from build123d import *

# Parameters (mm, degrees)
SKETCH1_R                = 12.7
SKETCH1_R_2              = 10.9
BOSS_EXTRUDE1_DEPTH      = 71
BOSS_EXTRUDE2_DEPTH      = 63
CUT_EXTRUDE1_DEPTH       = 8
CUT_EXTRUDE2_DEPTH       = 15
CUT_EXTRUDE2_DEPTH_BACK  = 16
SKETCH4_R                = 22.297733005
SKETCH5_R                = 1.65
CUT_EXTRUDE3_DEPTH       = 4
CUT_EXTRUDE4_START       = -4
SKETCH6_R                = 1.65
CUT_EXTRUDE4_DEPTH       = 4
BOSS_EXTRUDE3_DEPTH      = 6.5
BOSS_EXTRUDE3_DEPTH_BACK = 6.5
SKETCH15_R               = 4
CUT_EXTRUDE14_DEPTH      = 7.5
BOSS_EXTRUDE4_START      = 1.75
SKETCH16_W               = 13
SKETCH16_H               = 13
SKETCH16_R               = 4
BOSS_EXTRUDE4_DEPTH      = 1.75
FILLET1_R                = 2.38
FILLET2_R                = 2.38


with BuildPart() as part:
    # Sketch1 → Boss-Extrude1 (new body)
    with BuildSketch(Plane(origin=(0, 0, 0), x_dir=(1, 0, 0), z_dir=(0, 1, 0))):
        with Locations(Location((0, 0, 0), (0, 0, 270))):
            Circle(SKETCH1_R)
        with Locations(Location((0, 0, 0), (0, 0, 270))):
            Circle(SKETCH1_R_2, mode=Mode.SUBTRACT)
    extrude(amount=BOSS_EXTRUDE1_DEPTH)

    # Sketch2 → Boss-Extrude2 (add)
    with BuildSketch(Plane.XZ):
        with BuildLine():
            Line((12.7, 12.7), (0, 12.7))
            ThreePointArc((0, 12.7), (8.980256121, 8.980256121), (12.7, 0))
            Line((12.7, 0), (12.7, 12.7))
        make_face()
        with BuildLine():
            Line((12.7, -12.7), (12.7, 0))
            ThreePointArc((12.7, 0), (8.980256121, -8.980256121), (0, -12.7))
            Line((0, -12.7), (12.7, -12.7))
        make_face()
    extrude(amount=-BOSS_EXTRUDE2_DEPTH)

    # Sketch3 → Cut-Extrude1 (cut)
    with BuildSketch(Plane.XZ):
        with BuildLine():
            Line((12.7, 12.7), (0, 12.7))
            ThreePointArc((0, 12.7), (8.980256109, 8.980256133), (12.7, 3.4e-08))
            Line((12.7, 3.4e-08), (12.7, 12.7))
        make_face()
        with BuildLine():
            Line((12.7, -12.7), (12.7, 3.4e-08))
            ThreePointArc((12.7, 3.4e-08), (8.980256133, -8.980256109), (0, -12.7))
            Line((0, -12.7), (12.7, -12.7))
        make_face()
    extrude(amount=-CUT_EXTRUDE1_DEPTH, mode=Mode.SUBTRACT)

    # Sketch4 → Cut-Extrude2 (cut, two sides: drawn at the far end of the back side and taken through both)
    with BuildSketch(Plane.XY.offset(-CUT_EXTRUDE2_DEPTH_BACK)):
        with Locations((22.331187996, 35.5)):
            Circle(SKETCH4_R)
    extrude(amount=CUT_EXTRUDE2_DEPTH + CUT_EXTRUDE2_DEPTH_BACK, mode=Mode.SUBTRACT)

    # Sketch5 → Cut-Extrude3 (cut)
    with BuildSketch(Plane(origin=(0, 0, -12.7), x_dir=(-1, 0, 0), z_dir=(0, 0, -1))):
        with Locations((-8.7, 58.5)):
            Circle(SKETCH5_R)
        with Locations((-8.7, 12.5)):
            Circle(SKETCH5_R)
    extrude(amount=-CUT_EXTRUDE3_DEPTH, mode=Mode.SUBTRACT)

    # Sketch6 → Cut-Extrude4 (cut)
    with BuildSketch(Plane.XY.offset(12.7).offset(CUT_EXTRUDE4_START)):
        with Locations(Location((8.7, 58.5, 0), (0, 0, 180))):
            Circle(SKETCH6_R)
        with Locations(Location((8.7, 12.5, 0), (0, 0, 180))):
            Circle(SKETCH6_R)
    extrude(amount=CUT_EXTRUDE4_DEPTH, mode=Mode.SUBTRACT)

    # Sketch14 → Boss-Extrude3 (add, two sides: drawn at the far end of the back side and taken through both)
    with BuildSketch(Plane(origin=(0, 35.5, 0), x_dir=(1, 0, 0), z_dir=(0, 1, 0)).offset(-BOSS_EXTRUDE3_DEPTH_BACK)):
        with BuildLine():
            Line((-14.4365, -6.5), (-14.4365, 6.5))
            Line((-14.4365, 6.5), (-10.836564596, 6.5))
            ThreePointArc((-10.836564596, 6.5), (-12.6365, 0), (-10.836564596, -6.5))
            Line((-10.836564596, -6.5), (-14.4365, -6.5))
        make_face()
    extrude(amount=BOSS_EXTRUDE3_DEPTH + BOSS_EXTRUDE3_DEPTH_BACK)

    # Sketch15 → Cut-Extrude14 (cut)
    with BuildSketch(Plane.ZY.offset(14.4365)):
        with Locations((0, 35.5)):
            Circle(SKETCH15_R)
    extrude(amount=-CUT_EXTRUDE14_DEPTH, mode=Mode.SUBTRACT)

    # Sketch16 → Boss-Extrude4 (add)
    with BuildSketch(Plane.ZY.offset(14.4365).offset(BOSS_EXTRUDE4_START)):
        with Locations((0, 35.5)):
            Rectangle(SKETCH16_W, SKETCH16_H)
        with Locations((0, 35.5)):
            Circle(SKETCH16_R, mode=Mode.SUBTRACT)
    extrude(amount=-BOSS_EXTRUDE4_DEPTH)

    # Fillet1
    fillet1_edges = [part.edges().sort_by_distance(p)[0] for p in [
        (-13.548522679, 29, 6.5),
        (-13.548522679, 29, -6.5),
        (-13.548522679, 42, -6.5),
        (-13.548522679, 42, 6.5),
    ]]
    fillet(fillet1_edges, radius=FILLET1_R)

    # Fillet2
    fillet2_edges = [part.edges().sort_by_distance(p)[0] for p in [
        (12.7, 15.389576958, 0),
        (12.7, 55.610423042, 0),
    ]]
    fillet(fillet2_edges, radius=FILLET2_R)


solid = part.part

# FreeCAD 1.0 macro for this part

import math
import FreeCAD as App
import Part
import Sketcher
from FreeCAD import Vector


def edges_at(feature, points):
    """Names of the edges that pass closest to the given points."""
    edges = feature.Shape.Edges
    near = lambda p: min(range(len(edges)), key=lambda i: edges[i].distToShape(Part.Vertex(*p))[0])
    return sorted({f"Edge{near(p) + 1}" for p in points})


def add_polygon(sketch, points):
    """Adds a closed chain of lines whose ends are joined by coincident constraints."""
    first, n = sketch.GeometryCount, len(points)
    for a, b in zip(points, points[1:] + points[:1]):
        sketch.addGeometry(Part.LineSegment(App.Vector(*a, 0), App.Vector(*b, 0)), False)
    for i in range(n):
        sketch.addConstraint(Sketcher.Constraint("Coincident", first + i, 2, first + (i + 1) % n, 1))

doc = App.newDocument("Part")
params = doc.addObject("Spreadsheet::Sheet", "Params")
for row, (alias, value) in enumerate([
    ("sketch1_diameter", "25.4 mm"),
    ("sketch1_diameter2", "21.8 mm"),
    ("pad1_length", "71 mm"),
    ("sketch2_radius", "12.7 mm"),
    ("pad2_length", "63 mm"),
    ("sketch3_radius", "12.7 mm"),
    ("pocket1_length", "8 mm"),
    ("sketch5_diameter", "3.3 mm"),
    ("pocket3_length", "4 mm"),
    ("sketch6_diameter", "3.3 mm"),
    ("pocket4_length", "4 mm"),
    ("sketch7_height", "13 mm"),
    ("pad3_length", "6.5 mm"),
    ("pad3_length2", "6.5 mm"),
    ("sketch8_diameter", "8 mm"),
    ("pocket5_length", "7.5 mm"),
    ("sketch9_diameter", "8 mm"),
    ("sketch9_width", "13 mm"),
    ("pad4_length", "1.75 mm"),
    ("fillet_radius", "2.38 mm"),
    ("fillet2_radius", "2.38 mm"),
], start=1):
    params.set(f"A{row}", alias)
    params.set(f"B{row}", "=" + value)
    params.setAlias(f"B{row}", alias)

body = doc.addObject("PartDesign::Body", "Body")

# Sketch on XZ plane
sketch1 = body.newObject("Sketcher::SketchObject", "Sketch")
sketch1.AttachmentSupport = (doc.getObject("XZ_Plane"), [""])
sketch1.MapMode = "FlatFace"
sketch1.addGeometry(Part.Circle(Vector(0, 0, 0), Vector(0, 0, 1), 13), False)
sketch1.addGeometry(Part.Circle(Vector(0, 0, 0), Vector(0, 0, 1), 11), False)
sketch1.addConstraint(Sketcher.Constraint("Coincident", 0, 3, -1, 1))
sketch1.addConstraint(Sketcher.Constraint("Coincident", 1, 3, -1, 1))
sketch1.addConstraint(Sketcher.Constraint("Diameter", 0, 25.4))
sketch1.addConstraint(Sketcher.Constraint("Diameter", 1, 21.8))
sketch1.setExpression("Constraints[2]", "Params.sketch1_diameter")
sketch1.setExpression("Constraints[3]", "Params.sketch1_diameter2")
pad1 = body.newObject("PartDesign::Pad", "Pad")
pad1.Profile = sketch1
pad1.setExpression("Length", "Params.pad1_length")
pad1.Reversed = True

# Sketch on XZ plane
sketch2 = body.newObject("Sketcher::SketchObject", "Sketch001")
sketch2.AttachmentSupport = (doc.getObject("XZ_Plane"), [""])
sketch2.MapMode = "FlatFace"
sketch2.addGeometry(Part.LineSegment(Vector(13, 13, 0), Vector(0, 13, 0)), False)
sketch2.addGeometry(Part.ArcOfCircle(Part.Circle(Vector(0, 0, 0), Vector(0, 0, 1), 13), math.radians(0), math.radians(90)), False)
sketch2.addGeometry(Part.LineSegment(Vector(13, 0, 0), Vector(13, 13, 0)), False)
sketch2.addGeometry(Part.LineSegment(Vector(13, -13, 0), Vector(13, 0, 0)), False)
sketch2.addGeometry(Part.ArcOfCircle(Part.Circle(Vector(0, 0, 0), Vector(0, 0, 1), 13), math.radians(-90), math.radians(0)), False)
sketch2.addGeometry(Part.LineSegment(Vector(0, -13, 0), Vector(13, -13, 0)), False)
sketch2.addConstraint(Sketcher.Constraint("Tangent", 0, 2, 1, 2))
sketch2.addConstraint(Sketcher.Constraint("Tangent", 1, 1, 2, 1))
sketch2.addConstraint(Sketcher.Constraint("Coincident", 2, 2, 0, 1))
sketch2.addConstraint(Sketcher.Constraint("Tangent", 3, 2, 4, 2))
sketch2.addConstraint(Sketcher.Constraint("Tangent", 4, 1, 5, 1))
sketch2.addConstraint(Sketcher.Constraint("Coincident", 5, 2, 3, 1))
sketch2.addConstraint(Sketcher.Constraint("Horizontal", 0))
sketch2.addConstraint(Sketcher.Constraint("Vertical", 2))
sketch2.addConstraint(Sketcher.Constraint("Vertical", 3))
sketch2.addConstraint(Sketcher.Constraint("Horizontal", 5))
sketch2.addConstraint(Sketcher.Constraint("Coincident", 1, 3, -1, 1))
sketch2.addConstraint(Sketcher.Constraint("Coincident", 4, 3, -1, 1))
sketch2.addConstraint(Sketcher.Constraint("Equal", 1, 4))
sketch2.addConstraint(Sketcher.Constraint("Radius", 1, 12.7))
sketch2.setExpression("Constraints[13]", "Params.sketch2_radius")
pad2 = body.newObject("PartDesign::Pad", "Pad001")
pad2.Profile = sketch2
pad2.setExpression("Length", "Params.pad2_length")
pad2.Reversed = True

# Sketch on XZ plane
sketch3 = body.newObject("Sketcher::SketchObject", "Sketch002")
sketch3.AttachmentSupport = (doc.getObject("XZ_Plane"), [""])
sketch3.MapMode = "FlatFace"
sketch3.addGeometry(Part.LineSegment(Vector(13, 13, 0), Vector(0, 13, 0)), False)
sketch3.addGeometry(Part.ArcOfCircle(Part.Circle(Vector(0, 0, 0), Vector(0, 0, 1), 13), math.radians(0), math.radians(90)), False)
sketch3.addGeometry(Part.LineSegment(Vector(13, 0, 0), Vector(13, 13, 0)), False)
sketch3.addGeometry(Part.LineSegment(Vector(13, -13, 0), Vector(13, 0, 0)), False)
sketch3.addGeometry(Part.ArcOfCircle(Part.Circle(Vector(0, 0, 0), Vector(0, 0, 1), 13), math.radians(-90), math.radians(0)), False)
sketch3.addGeometry(Part.LineSegment(Vector(0, -13, 0), Vector(13, -13, 0)), False)
sketch3.addConstraint(Sketcher.Constraint("Tangent", 0, 2, 1, 2))
sketch3.addConstraint(Sketcher.Constraint("Tangent", 1, 1, 2, 1))
sketch3.addConstraint(Sketcher.Constraint("Coincident", 2, 2, 0, 1))
sketch3.addConstraint(Sketcher.Constraint("Tangent", 3, 2, 4, 2))
sketch3.addConstraint(Sketcher.Constraint("Tangent", 4, 1, 5, 1))
sketch3.addConstraint(Sketcher.Constraint("Coincident", 5, 2, 3, 1))
sketch3.addConstraint(Sketcher.Constraint("Horizontal", 0))
sketch3.addConstraint(Sketcher.Constraint("Vertical", 2))
sketch3.addConstraint(Sketcher.Constraint("Vertical", 3))
sketch3.addConstraint(Sketcher.Constraint("Horizontal", 5))
sketch3.addConstraint(Sketcher.Constraint("Coincident", 1, 3, -1, 1))
sketch3.addConstraint(Sketcher.Constraint("Coincident", 4, 3, -1, 1))
sketch3.addConstraint(Sketcher.Constraint("Equal", 1, 4))
sketch3.addConstraint(Sketcher.Constraint("Radius", 1, 12.7))
sketch3.setExpression("Constraints[13]", "Params.sketch3_radius")
pocket1 = body.newObject("PartDesign::Pocket", "Pocket")
pocket1.Profile = sketch3
pocket1.setExpression("Length", "Params.pocket1_length")

# Sketch on XY plane
sketch4 = body.newObject("Sketcher::SketchObject", "Sketch003")
sketch4.AttachmentSupport = (doc.getObject("XY_Plane"), [""])
sketch4.MapMode = "FlatFace"
sketch4.addGeometry(Part.Circle(Vector(22, 36, 0), Vector(0, 0, 1), 22), False)
sketch4.addConstraint(Sketcher.Constraint("DistanceY", -1, 1, 0, 3, 35.5))
sketch4.addConstraint(Sketcher.Constraint("Diameter", 0, 44.595466))
sketch4.addConstraint(Sketcher.Constraint("DistanceX", -1, 1, 0, 3, 22.331188))
pocket2 = body.newObject("PartDesign::Pocket", "Pocket001")
pocket2.Profile = sketch4
pocket2.Type = "ThroughAll"
pocket2.Midplane = True

# Sketch on XY plane
sketch5 = body.newObject("Sketcher::SketchObject", "Sketch004")
sketch5.AttachmentSupport = (doc.getObject("XY_Plane"), [""])
sketch5.MapMode = "FlatFace"
sketch5.AttachmentOffset = App.Placement(Vector(0, 0, -12.7), App.Rotation())
sketch5.addGeometry(Part.Circle(Vector(8.7, 58.5, 0), Vector(0, 0, 1), 1.6), False)
sketch5.addGeometry(Part.Circle(Vector(8.7, 12.5, 0), Vector(0, 0, 1), 1.6), False)
sketch5.addConstraint(Sketcher.Constraint("Equal", 0, 1))
sketch5.addConstraint(Sketcher.Constraint("Vertical", 0, 3, 1, 3))
sketch5.addConstraint(Sketcher.Constraint("Diameter", 0, 3.3))
sketch5.addConstraint(Sketcher.Constraint("DistanceY", 1, 3, 0, 3, 46.0))
sketch5.addConstraint(Sketcher.Constraint("DistanceX", -1, 1, 0, 3, 8.7))
sketch5.addConstraint(Sketcher.Constraint("DistanceY", -1, 1, 0, 3, 58.5))
sketch5.setExpression("Constraints[2]", "Params.sketch5_diameter")
pocket3 = body.newObject("PartDesign::Pocket", "Pocket002")
pocket3.Profile = sketch5
pocket3.setExpression("Length", "Params.pocket3_length")
pocket3.Reversed = True

# Sketch on XY plane
sketch6 = body.newObject("Sketcher::SketchObject", "Sketch005")
sketch6.AttachmentSupport = (doc.getObject("XY_Plane"), [""])
sketch6.MapMode = "FlatFace"
sketch6.AttachmentOffset = App.Placement(Vector(0, 0, 8.7), App.Rotation())
sketch6.addGeometry(Part.Circle(Vector(8.7, 58.5, 0), Vector(0, 0, 1), 1.6), False)
sketch6.addGeometry(Part.Circle(Vector(8.7, 12.5, 0), Vector(0, 0, 1), 1.6), False)
sketch6.addConstraint(Sketcher.Constraint("Equal", 0, 1))
sketch6.addConstraint(Sketcher.Constraint("Vertical", 0, 3, 1, 3))
sketch6.addConstraint(Sketcher.Constraint("Diameter", 0, 3.3))
sketch6.addConstraint(Sketcher.Constraint("DistanceY", 1, 3, 0, 3, 46.0))
sketch6.addConstraint(Sketcher.Constraint("DistanceX", -1, 1, 0, 3, 8.7))
sketch6.addConstraint(Sketcher.Constraint("DistanceY", -1, 1, 0, 3, 58.5))
sketch6.setExpression("Constraints[2]", "Params.sketch6_diameter")
pocket4 = body.newObject("PartDesign::Pocket", "Pocket003")
pocket4.Profile = sketch6
pocket4.setExpression("Length", "Params.pocket4_length")
pocket4.Reversed = True

# Sketch on XZ plane
sketch7 = body.newObject("Sketcher::SketchObject", "Sketch006")
sketch7.AttachmentSupport = (doc.getObject("XZ_Plane"), [""])
sketch7.MapMode = "FlatFace"
sketch7.AttachmentOffset = App.Placement(Vector(0, 0, -35.5), App.Rotation())
sketch7.addGeometry(Part.LineSegment(Vector(-14.4, -6.5, 0), Vector(-14.4, 6.5, 0)), False)
sketch7.addGeometry(Part.LineSegment(Vector(-14.4, 6.5, 0), Vector(-10.8, 6.5, 0)), False)
sketch7.addGeometry(Part.ArcOfCircle(Part.Circle(Vector(0, 0, 0), Vector(0, 0, 1), 12.6), math.radians(149), math.radians(211)), False)
sketch7.addGeometry(Part.LineSegment(Vector(-10.8, -6.5, 0), Vector(-14.4, -6.5, 0)), False)
sketch7.addConstraint(Sketcher.Constraint("Coincident", 0, 2, 1, 1))
sketch7.addConstraint(Sketcher.Constraint("Coincident", 1, 2, 2, 1))
sketch7.addConstraint(Sketcher.Constraint("Coincident", 2, 2, 3, 1))
sketch7.addConstraint(Sketcher.Constraint("Coincident", 3, 2, 0, 1))
sketch7.addConstraint(Sketcher.Constraint("Vertical", 0))
sketch7.addConstraint(Sketcher.Constraint("Horizontal", 1))
sketch7.addConstraint(Sketcher.Constraint("Horizontal", 3))
sketch7.addConstraint(Sketcher.Constraint("Coincident", 2, 3, -1, 1))
sketch7.addConstraint(Sketcher.Constraint("Vertical", 1, 2, 2, 2))
sketch7.addConstraint(Sketcher.Constraint("DistanceY", 0, 1, 0, 2, 13.0))
sketch7.addConstraint(Sketcher.Constraint("Radius", 2, 12.6365))
sketch7.addConstraint(Sketcher.Constraint("DistanceX", 0, 2, -1, 1, 14.4365))
sketch7.setExpression("Constraints[9]", "Params.sketch7_height")
pad3 = body.newObject("PartDesign::Pad", "Pad002")
pad3.Profile = sketch7
pad3.Type = "TwoLengths"
pad3.setExpression("Length", "Params.pad3_length")
pad3.setExpression("Length2", "Params.pad3_length2")
pad3.Reversed = True

# Sketch on YZ plane
sketch8 = body.newObject("Sketcher::SketchObject", "Sketch007")
sketch8.AttachmentSupport = (doc.getObject("YZ_Plane"), [""])
sketch8.MapMode = "FlatFace"
sketch8.AttachmentOffset = App.Placement(Vector(0, 0, -14.4365), App.Rotation())
sketch8.addGeometry(Part.Circle(Vector(35.5, 0, 0), Vector(0, 0, 1), 4), False)
sketch8.addConstraint(Sketcher.Constraint("PointOnObject", 0, 3, -1))
sketch8.addConstraint(Sketcher.Constraint("Diameter", 0, 8.0))
sketch8.addConstraint(Sketcher.Constraint("DistanceX", -1, 1, 0, 3, 35.5))
sketch8.setExpression("Constraints[1]", "Params.sketch8_diameter")
pocket5 = body.newObject("PartDesign::Pocket", "Pocket004")
pocket5.Profile = sketch8
pocket5.setExpression("Length", "Params.pocket5_length")
pocket5.Reversed = True

# Sketch on YZ plane
sketch9 = body.newObject("Sketcher::SketchObject", "Sketch008")
sketch9.AttachmentSupport = (doc.getObject("YZ_Plane"), [""])
sketch9.MapMode = "FlatFace"
sketch9.AttachmentOffset = App.Placement(Vector(0, 0, -16.1865), App.Rotation())
add_polygon(sketch9, [(42, -6.5), (29, -6.5), (29, 6.5), (42, 6.5)])  # lines 0-3
sketch9.addGeometry(Part.Circle(Vector(35.5, 0, 0), Vector(0, 0, 1), 4), False)  # 4
sketch9.addConstraint(Sketcher.Constraint("Horizontal", 0))
sketch9.addConstraint(Sketcher.Constraint("Vertical", 1))
sketch9.addConstraint(Sketcher.Constraint("Horizontal", 2))
sketch9.addConstraint(Sketcher.Constraint("Vertical", 3))
sketch9.addConstraint(Sketcher.Constraint("PointOnObject", 4, 3, -1))
sketch9.addConstraint(Sketcher.Constraint("Equal", 2, 1))
sketch9.addConstraint(Sketcher.Constraint("Diameter", 4, 8.0))
sketch9.addConstraint(Sketcher.Constraint("DistanceX", 0, 2, 0, 1, 13.0))
sketch9.addConstraint(Sketcher.Constraint("DistanceX", -1, 1, 0, 2, 29.0))
sketch9.addConstraint(Sketcher.Constraint("DistanceX", -1, 1, 4, 3, 35.5))
sketch9.addConstraint(Sketcher.Constraint("DistanceY", 0, 2, -1, 1, 6.5))
sketch9.setExpression("Constraints[10]", "Params.sketch9_diameter")
sketch9.setExpression("Constraints[11]", "Params.sketch9_width")
pad4 = body.newObject("PartDesign::Pad", "Pad003")
pad4.Profile = sketch9
pad4.setExpression("Length", "Params.pad4_length")
doc.recompute()

fillet = body.newObject("PartDesign::Fillet", "Fillet")
fillet.Base = (pad4, edges_at(pad4, [
    (-13.549, 29, 6.5),
    (-13.549, 29, -6.5),
    (-13.549, 42, -6.5),
    (-13.549, 42, 6.5),
]))
fillet.setExpression("Radius", "Params.fillet_radius")
doc.recompute()

fillet2 = body.newObject("PartDesign::Fillet", "Fillet001")
fillet2.Base = (fillet, edges_at(fillet, [(12.7, 15.39, 0), (12.7, 55.61, 0)]))
fillet2.setExpression("Radius", "Params.fillet2_radius")

doc.recompute()
